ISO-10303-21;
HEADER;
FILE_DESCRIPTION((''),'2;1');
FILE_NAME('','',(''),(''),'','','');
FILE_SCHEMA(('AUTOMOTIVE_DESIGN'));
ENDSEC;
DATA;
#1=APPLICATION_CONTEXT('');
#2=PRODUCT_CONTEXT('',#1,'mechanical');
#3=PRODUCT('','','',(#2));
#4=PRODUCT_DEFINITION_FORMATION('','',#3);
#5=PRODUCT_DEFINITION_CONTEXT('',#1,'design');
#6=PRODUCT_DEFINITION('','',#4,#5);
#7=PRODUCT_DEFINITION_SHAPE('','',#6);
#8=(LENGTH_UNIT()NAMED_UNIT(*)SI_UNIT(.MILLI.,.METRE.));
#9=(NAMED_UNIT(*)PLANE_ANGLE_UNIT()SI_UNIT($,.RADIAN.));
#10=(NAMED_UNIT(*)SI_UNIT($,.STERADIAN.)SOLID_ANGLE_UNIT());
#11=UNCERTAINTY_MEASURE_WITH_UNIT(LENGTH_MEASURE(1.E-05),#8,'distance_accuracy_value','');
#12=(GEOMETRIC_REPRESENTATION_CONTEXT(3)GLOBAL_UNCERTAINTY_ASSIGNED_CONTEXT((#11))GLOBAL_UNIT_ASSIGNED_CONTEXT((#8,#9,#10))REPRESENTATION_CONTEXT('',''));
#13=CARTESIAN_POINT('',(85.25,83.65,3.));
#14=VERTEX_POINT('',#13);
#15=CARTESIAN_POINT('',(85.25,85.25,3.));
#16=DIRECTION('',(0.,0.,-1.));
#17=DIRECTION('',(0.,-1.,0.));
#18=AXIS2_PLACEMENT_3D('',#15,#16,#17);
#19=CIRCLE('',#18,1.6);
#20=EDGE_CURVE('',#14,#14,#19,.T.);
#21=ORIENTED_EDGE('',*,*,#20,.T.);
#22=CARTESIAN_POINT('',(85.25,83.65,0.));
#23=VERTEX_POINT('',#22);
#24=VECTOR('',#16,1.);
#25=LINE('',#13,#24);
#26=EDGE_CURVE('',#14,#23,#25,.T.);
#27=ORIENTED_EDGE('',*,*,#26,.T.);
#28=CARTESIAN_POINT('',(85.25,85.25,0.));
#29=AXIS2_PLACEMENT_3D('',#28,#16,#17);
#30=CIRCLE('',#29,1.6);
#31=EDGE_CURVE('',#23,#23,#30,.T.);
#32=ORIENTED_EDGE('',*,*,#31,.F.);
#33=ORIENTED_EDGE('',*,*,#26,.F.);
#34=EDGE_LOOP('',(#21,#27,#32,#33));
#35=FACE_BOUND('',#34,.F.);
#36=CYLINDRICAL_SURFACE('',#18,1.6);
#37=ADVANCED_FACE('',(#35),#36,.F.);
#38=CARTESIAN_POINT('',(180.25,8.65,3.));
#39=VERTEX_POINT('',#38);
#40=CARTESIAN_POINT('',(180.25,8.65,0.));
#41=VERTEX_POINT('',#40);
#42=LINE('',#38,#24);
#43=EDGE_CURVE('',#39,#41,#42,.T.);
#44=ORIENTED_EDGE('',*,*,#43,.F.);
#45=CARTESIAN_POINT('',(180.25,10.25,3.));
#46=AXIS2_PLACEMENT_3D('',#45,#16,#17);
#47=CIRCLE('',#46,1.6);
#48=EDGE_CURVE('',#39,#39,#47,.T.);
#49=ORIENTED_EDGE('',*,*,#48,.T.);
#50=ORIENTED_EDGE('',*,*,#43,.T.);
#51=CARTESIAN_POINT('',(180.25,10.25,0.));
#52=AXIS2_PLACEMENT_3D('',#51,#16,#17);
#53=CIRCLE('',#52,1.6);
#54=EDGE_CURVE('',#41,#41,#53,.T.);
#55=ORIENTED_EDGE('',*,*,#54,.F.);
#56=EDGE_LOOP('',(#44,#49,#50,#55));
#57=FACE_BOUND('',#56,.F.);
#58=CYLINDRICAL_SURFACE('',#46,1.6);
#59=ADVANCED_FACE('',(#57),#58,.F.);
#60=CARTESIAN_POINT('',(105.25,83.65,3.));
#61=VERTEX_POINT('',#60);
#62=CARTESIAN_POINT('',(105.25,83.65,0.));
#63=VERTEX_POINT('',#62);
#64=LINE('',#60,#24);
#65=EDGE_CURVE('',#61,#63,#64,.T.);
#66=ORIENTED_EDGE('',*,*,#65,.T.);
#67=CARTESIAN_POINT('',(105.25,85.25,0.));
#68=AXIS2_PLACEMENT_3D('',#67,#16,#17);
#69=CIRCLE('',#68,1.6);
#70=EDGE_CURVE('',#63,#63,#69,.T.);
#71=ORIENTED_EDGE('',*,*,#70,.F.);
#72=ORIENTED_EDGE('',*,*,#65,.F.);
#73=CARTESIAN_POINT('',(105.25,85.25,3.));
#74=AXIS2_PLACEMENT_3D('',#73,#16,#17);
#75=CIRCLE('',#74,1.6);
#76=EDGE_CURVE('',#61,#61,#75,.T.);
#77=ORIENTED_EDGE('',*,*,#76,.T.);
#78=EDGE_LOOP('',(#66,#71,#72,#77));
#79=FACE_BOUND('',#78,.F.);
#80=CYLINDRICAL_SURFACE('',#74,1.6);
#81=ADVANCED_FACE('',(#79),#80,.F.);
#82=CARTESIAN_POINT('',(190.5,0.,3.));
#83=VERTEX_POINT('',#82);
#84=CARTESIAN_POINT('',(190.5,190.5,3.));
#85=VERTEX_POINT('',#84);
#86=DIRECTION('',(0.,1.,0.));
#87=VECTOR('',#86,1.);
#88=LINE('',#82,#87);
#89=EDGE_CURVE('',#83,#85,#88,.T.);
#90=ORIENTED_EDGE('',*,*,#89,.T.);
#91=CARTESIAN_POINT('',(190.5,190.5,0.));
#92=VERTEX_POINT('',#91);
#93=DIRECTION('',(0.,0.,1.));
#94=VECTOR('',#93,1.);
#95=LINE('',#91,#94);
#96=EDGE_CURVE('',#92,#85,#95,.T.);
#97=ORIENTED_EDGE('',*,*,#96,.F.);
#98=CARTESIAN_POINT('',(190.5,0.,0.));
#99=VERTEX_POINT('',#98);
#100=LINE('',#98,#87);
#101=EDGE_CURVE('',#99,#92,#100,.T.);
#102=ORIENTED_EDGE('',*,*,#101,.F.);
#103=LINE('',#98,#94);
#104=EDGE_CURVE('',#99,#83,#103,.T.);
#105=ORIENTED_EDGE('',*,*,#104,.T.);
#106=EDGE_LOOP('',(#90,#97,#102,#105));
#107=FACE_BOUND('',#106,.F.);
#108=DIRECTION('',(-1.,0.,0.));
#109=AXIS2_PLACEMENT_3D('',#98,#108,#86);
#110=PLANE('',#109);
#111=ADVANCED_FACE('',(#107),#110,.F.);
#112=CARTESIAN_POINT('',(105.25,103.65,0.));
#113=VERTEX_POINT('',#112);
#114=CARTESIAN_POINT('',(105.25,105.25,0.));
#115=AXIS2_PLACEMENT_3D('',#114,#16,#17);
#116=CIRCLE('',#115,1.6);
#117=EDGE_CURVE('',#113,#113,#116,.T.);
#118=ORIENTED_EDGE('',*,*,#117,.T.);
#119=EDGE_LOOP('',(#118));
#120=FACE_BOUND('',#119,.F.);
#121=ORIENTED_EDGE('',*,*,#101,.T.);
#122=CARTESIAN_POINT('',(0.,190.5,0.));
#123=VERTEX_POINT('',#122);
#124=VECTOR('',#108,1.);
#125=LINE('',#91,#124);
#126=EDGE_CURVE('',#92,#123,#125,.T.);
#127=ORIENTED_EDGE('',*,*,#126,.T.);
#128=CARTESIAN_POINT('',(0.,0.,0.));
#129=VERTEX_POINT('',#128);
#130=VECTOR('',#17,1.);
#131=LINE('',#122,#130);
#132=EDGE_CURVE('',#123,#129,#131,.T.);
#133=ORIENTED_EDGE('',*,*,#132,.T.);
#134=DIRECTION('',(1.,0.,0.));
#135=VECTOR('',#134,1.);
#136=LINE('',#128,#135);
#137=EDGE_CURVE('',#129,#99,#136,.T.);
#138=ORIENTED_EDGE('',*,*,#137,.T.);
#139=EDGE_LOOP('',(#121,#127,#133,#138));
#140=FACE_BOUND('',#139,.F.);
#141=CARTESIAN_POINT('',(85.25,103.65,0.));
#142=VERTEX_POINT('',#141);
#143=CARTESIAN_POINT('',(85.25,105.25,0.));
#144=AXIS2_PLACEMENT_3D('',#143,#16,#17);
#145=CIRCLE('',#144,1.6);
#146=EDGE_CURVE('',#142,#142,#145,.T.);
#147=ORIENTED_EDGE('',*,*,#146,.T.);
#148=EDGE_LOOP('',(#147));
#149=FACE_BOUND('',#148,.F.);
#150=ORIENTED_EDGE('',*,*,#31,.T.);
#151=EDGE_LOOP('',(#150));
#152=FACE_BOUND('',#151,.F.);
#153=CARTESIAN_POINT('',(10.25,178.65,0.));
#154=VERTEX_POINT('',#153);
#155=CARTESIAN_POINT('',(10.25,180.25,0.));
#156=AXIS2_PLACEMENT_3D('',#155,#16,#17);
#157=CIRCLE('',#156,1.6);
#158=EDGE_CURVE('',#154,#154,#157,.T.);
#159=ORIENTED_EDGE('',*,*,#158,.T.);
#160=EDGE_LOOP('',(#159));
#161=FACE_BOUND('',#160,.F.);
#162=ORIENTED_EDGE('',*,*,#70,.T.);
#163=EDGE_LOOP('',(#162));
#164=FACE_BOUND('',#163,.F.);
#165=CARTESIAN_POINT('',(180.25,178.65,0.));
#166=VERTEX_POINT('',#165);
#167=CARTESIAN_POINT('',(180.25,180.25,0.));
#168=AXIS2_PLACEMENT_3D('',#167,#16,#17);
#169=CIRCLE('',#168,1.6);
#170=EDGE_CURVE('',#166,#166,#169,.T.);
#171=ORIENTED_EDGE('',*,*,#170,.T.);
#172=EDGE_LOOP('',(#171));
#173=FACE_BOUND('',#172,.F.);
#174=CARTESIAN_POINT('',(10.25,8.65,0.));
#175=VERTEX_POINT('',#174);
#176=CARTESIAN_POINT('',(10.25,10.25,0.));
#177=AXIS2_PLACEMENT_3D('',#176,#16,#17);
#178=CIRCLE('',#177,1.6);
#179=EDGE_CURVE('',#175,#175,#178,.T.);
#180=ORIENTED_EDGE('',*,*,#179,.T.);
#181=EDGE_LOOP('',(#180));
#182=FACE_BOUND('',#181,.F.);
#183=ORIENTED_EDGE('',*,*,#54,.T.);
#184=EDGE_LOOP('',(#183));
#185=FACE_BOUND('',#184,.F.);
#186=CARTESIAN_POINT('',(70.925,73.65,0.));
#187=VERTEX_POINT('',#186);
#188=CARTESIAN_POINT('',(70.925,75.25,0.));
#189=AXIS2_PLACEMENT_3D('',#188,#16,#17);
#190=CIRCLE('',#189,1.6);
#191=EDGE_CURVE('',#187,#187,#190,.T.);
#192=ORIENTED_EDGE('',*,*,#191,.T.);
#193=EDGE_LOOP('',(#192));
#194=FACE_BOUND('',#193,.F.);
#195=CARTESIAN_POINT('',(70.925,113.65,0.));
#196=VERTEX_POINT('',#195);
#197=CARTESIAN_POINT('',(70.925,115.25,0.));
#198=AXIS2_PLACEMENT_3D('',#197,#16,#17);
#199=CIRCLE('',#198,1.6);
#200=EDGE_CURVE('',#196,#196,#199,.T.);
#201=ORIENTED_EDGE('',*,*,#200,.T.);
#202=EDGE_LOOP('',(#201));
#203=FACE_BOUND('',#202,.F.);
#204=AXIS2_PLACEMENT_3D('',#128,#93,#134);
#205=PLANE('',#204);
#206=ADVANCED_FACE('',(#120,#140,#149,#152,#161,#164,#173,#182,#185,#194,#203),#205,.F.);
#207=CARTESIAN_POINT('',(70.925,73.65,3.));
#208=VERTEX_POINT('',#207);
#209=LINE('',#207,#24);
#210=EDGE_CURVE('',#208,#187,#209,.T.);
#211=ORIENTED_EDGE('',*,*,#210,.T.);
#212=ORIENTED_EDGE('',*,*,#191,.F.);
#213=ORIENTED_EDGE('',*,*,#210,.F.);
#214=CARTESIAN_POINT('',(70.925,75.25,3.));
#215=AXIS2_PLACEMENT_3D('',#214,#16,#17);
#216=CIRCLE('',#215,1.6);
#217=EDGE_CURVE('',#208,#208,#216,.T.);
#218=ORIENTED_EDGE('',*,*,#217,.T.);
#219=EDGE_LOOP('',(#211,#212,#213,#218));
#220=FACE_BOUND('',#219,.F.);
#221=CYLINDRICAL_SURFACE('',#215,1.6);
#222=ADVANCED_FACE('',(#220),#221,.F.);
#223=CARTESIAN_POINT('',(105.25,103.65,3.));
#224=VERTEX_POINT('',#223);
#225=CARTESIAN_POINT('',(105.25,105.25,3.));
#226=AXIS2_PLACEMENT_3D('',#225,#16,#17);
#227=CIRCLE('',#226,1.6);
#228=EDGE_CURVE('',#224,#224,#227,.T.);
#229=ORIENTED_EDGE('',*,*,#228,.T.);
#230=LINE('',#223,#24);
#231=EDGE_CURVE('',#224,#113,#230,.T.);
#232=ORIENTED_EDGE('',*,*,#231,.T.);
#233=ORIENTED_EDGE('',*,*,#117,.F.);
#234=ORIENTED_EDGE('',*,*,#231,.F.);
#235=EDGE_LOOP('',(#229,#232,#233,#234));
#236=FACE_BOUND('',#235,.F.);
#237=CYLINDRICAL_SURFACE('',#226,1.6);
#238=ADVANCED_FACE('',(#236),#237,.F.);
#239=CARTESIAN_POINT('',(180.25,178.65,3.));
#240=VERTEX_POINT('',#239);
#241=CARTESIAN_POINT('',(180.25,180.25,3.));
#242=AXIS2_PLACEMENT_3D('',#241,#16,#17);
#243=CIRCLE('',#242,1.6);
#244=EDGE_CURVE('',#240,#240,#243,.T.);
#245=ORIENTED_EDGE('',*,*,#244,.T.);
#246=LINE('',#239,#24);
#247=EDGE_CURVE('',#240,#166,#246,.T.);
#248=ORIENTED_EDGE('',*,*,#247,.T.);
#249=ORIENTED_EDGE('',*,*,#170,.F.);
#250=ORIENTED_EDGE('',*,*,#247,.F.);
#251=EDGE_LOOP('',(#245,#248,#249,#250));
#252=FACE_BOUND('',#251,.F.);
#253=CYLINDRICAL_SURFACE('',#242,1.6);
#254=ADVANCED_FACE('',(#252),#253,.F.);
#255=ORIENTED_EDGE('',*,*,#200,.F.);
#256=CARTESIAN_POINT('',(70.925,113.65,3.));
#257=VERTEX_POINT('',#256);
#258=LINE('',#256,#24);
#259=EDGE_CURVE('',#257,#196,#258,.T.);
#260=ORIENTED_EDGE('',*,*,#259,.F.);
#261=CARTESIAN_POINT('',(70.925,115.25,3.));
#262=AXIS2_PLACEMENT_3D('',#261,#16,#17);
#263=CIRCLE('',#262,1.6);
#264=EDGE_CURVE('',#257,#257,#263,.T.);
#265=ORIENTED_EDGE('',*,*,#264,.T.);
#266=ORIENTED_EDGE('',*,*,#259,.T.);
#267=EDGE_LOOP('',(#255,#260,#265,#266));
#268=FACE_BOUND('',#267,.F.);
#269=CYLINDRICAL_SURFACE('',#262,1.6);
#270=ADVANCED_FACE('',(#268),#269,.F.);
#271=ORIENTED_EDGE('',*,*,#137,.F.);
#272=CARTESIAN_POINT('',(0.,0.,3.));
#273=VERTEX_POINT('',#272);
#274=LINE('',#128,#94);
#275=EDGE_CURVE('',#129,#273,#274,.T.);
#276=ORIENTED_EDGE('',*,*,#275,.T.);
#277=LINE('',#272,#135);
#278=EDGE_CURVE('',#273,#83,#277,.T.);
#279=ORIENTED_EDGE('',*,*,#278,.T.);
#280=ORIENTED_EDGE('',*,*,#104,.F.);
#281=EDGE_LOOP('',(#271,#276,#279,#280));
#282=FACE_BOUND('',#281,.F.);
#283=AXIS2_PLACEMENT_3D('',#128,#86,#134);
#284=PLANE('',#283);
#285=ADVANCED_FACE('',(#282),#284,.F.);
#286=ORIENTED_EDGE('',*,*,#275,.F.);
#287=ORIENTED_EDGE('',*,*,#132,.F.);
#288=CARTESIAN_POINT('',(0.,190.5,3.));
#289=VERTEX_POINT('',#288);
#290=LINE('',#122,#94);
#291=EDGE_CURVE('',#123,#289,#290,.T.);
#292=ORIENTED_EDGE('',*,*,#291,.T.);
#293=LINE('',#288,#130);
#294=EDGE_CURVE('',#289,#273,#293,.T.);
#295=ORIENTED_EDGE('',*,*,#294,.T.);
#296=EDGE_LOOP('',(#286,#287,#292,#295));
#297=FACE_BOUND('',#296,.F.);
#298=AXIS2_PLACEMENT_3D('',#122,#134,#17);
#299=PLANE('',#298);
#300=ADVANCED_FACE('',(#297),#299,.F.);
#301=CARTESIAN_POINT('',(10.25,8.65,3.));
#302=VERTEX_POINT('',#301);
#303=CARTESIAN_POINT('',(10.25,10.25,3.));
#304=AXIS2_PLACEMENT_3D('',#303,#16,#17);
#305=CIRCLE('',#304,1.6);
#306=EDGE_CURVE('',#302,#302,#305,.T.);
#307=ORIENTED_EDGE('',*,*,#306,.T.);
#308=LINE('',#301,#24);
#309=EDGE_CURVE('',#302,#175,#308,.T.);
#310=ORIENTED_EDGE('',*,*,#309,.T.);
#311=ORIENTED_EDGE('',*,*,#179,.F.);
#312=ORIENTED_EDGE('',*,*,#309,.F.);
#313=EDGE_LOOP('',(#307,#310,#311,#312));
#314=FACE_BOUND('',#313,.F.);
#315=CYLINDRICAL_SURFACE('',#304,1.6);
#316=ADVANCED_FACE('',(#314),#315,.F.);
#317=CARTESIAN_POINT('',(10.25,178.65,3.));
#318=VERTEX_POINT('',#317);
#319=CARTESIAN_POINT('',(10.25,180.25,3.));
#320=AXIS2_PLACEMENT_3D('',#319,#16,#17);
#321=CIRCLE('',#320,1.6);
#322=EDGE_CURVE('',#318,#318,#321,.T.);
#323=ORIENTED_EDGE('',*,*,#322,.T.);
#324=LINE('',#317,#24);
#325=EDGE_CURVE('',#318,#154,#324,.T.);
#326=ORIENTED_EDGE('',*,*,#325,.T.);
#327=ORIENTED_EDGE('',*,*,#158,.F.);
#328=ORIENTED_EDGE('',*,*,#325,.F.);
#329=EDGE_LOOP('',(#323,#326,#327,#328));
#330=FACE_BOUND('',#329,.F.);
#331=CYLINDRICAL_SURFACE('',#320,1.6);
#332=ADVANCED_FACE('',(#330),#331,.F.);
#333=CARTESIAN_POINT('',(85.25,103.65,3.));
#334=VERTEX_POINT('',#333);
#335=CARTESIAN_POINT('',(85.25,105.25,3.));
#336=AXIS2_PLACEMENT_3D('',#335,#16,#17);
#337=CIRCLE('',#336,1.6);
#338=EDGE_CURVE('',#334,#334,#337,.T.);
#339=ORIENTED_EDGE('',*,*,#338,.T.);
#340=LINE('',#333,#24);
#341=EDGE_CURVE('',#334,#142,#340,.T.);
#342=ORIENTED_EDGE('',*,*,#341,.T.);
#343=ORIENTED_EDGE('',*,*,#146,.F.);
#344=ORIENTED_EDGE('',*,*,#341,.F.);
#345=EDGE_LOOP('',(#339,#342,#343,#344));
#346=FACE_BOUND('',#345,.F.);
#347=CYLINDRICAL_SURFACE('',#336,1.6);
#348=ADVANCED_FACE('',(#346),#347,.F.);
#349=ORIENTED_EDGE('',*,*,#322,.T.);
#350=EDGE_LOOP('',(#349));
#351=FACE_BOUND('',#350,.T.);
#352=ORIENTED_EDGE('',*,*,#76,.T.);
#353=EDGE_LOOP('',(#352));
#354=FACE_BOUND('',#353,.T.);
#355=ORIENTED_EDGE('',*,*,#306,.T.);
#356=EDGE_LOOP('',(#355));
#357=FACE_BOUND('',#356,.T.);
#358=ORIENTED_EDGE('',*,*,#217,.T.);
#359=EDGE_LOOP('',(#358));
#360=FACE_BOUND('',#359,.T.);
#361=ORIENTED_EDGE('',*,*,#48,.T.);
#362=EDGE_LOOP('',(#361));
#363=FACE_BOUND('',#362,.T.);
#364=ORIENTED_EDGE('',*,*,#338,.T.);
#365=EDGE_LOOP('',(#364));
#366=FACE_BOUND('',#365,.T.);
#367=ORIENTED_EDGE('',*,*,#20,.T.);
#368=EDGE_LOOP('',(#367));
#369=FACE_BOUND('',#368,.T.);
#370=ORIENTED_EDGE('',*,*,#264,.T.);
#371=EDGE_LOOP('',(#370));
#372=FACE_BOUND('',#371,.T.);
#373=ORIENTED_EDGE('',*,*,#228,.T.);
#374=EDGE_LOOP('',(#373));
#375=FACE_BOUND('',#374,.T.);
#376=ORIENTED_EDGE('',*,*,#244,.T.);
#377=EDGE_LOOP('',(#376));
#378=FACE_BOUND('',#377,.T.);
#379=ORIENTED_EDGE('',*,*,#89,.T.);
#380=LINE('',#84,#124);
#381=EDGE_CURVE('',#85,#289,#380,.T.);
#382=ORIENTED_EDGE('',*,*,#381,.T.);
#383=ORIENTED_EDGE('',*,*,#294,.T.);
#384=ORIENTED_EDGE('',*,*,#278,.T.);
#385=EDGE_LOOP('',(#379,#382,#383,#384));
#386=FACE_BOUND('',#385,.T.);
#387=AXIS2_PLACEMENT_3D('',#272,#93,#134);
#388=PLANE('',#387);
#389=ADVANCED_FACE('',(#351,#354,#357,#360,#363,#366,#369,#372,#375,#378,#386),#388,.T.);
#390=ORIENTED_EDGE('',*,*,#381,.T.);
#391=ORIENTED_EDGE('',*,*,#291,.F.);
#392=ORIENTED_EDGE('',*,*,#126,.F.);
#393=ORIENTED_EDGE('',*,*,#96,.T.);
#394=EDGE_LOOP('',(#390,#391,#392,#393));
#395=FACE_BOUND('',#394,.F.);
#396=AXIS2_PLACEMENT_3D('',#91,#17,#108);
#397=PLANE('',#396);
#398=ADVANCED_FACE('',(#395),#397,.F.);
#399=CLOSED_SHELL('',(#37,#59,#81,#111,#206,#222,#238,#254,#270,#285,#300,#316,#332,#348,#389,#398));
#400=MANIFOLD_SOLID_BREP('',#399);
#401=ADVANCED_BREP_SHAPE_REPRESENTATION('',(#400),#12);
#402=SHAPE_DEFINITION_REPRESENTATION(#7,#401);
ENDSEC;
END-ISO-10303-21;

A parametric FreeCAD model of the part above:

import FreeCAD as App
import Part
import Sketcher


def add_polygon(sketch, points):
    """Adds a closed chain of lines whose ends are joined by coincident constraints."""
    first, n = sketch.GeometryCount, len(points)
    for a, b in zip(points, points[1:] + points[:1]):
        sketch.addGeometry(Part.LineSegment(App.Vector(*a, 0), App.Vector(*b, 0)), False)
    for i in range(n):
        sketch.addConstraint(Sketcher.Constraint("Coincident", first + i, 2, first + (i + 1) % n, 1))

doc = App.newDocument("Part")
body = doc.addObject("PartDesign::Body", "Body")

# Sketch on XY plane
sketch1 = doc.addObject("Sketcher::SketchObject", "Sketch")
body.addObject(sketch1)
sketch1.AttachmentSupport = (doc.XY_Plane, [""])
sketch1.MapMode = "FlatFace"
add_polygon(sketch1, [(0, 190), (0, 0), (190, 0), (190, 190)])  # lines 0-3
sketch1.addConstraint([
    Sketcher.Constraint("Vertical", 0),
    Sketcher.Constraint("Horizontal", 1),
    Sketcher.Constraint("Vertical", 2),
    Sketcher.Constraint("Horizontal", 3),
    Sketcher.Constraint("Coincident", 0, 2, -1, 1),
    Sketcher.Constraint("Equal", 3, 0),
    Sketcher.Constraint("DistanceX", 1, 1, 1, 2, 190.5),
])
pad1 = doc.addObject("PartDesign::Pad", "Pad")
body.addObject(pad1)
pad1.Profile = sketch1
pad1.Length = 3

# Sketch on XY plane
sketch2 = doc.addObject("Sketcher::SketchObject", "Sketch001")
body.addObject(sketch2)
sketch2.AttachmentSupport = (doc.XY_Plane, [""])
sketch2.MapMode = "FlatFace"
sketch2.AttachmentOffset = App.Placement(App.Vector(0, 0, 3), App.Rotation())
sketch2.addGeometry([
    Part.Circle(App.Vector(10.2, 180.2, 0), App.Vector(0, 0, 1), 1.6),  # 0
    Part.Circle(App.Vector(180.2, 180.2, 0), App.Vector(0, 0, 1), 1.6),  # 1
    Part.Circle(App.Vector(180.2, 10.2, 0), App.Vector(0, 0, 1), 1.6),  # 2
    Part.Circle(App.Vector(10.2, 10.2, 0), App.Vector(0, 0, 1), 1.6),  # 3
    Part.Circle(App.Vector(85.2, 105.2, 0), App.Vector(0, 0, 1), 1.6),  # 4
    Part.Circle(App.Vector(105.2, 105.2, 0), App.Vector(0, 0, 1), 1.6),  # 5
    Part.Circle(App.Vector(105.2, 85.2, 0), App.Vector(0, 0, 1), 1.6),  # 6
    Part.Circle(App.Vector(85.2, 85.2, 0), App.Vector(0, 0, 1), 1.6),  # 7
    Part.Circle(App.Vector(70.9, 115.2, 0), App.Vector(0, 0, 1), 1.6),  # 8
    Part.Circle(App.Vector(70.9, 75.2, 0), App.Vector(0, 0, 1), 1.6),  # 9
], False)
sketch2.addConstraint([
    Sketcher.Constraint("Equal", 0, 1),
    Sketcher.Constraint("Equal", 1, 2),
    Sketcher.Constraint("Equal", 2, 3),
    Sketcher.Constraint("Equal", 3, 4),
    Sketcher.Constraint("Equal", 4, 5),
    Sketcher.Constraint("Equal", 5, 6),
    Sketcher.Constraint("Equal", 6, 7),
    Sketcher.Constraint("Equal", 7, 8),
    Sketcher.Constraint("Equal", 8, 9),
    Sketcher.Constraint("Horizontal", 0, 3, 1, 3),
    Sketcher.Constraint("Horizontal", 2, 3, 3, 3),
    Sketcher.Constraint("Horizontal", 4, 3, 5, 3),
    Sketcher.Constraint("Horizontal", 6, 3, 7, 3),
    Sketcher.Constraint("Vertical", 1, 3, 2, 3),
    Sketcher.Constraint("Vertical", 0, 3, 3, 3),
    Sketcher.Constraint("Vertical", 5, 3, 6, 3),
    Sketcher.Constraint("Vertical", 4, 3, 7, 3),
    Sketcher.Constraint("Vertical", 8, 3, 9, 3),
    Sketcher.Constraint("Diameter", 0, 3.2),
    Sketcher.Constraint("DistanceX", 0, 3, 1, 3, 170.0),
    Sketcher.Constraint("DistanceY", 2, 3, 1, 3, 170.0),
    Sketcher.Constraint("DistanceX", 0, 3, 4, 3, 75.0),
    Sketcher.Constraint("DistanceY", 4, 3, 0, 3, 75.0),
    Sketcher.Constraint("DistanceX", 4, 3, 5, 3, 20.0),
    Sketcher.Constraint("DistanceY", 6, 3, 5, 3, 20.0),
    Sketcher.Constraint("DistanceY", 4, 3, 8, 3, 10.0),
    Sketcher.Constraint("DistanceY", 9, 3, 7, 3, 10.0),
    Sketcher.Constraint("DistanceX", -1, 1, 0, 3, 10.25),
    Sketcher.Constraint("DistanceY", -1, 1, 0, 3, 180.25),
    Sketcher.Constraint("DistanceX", -1, 1, 8, 3, 70.925),
])
doc.recompute()
hole = doc.addObject("PartDesign::Hole", "Hole")
body.addObject(hole)
hole.Profile = sketch2
hole.ThreadType = "None"
hole.Diameter = 3.2
hole.DepthType = "ThroughAll"

doc.recompute()
